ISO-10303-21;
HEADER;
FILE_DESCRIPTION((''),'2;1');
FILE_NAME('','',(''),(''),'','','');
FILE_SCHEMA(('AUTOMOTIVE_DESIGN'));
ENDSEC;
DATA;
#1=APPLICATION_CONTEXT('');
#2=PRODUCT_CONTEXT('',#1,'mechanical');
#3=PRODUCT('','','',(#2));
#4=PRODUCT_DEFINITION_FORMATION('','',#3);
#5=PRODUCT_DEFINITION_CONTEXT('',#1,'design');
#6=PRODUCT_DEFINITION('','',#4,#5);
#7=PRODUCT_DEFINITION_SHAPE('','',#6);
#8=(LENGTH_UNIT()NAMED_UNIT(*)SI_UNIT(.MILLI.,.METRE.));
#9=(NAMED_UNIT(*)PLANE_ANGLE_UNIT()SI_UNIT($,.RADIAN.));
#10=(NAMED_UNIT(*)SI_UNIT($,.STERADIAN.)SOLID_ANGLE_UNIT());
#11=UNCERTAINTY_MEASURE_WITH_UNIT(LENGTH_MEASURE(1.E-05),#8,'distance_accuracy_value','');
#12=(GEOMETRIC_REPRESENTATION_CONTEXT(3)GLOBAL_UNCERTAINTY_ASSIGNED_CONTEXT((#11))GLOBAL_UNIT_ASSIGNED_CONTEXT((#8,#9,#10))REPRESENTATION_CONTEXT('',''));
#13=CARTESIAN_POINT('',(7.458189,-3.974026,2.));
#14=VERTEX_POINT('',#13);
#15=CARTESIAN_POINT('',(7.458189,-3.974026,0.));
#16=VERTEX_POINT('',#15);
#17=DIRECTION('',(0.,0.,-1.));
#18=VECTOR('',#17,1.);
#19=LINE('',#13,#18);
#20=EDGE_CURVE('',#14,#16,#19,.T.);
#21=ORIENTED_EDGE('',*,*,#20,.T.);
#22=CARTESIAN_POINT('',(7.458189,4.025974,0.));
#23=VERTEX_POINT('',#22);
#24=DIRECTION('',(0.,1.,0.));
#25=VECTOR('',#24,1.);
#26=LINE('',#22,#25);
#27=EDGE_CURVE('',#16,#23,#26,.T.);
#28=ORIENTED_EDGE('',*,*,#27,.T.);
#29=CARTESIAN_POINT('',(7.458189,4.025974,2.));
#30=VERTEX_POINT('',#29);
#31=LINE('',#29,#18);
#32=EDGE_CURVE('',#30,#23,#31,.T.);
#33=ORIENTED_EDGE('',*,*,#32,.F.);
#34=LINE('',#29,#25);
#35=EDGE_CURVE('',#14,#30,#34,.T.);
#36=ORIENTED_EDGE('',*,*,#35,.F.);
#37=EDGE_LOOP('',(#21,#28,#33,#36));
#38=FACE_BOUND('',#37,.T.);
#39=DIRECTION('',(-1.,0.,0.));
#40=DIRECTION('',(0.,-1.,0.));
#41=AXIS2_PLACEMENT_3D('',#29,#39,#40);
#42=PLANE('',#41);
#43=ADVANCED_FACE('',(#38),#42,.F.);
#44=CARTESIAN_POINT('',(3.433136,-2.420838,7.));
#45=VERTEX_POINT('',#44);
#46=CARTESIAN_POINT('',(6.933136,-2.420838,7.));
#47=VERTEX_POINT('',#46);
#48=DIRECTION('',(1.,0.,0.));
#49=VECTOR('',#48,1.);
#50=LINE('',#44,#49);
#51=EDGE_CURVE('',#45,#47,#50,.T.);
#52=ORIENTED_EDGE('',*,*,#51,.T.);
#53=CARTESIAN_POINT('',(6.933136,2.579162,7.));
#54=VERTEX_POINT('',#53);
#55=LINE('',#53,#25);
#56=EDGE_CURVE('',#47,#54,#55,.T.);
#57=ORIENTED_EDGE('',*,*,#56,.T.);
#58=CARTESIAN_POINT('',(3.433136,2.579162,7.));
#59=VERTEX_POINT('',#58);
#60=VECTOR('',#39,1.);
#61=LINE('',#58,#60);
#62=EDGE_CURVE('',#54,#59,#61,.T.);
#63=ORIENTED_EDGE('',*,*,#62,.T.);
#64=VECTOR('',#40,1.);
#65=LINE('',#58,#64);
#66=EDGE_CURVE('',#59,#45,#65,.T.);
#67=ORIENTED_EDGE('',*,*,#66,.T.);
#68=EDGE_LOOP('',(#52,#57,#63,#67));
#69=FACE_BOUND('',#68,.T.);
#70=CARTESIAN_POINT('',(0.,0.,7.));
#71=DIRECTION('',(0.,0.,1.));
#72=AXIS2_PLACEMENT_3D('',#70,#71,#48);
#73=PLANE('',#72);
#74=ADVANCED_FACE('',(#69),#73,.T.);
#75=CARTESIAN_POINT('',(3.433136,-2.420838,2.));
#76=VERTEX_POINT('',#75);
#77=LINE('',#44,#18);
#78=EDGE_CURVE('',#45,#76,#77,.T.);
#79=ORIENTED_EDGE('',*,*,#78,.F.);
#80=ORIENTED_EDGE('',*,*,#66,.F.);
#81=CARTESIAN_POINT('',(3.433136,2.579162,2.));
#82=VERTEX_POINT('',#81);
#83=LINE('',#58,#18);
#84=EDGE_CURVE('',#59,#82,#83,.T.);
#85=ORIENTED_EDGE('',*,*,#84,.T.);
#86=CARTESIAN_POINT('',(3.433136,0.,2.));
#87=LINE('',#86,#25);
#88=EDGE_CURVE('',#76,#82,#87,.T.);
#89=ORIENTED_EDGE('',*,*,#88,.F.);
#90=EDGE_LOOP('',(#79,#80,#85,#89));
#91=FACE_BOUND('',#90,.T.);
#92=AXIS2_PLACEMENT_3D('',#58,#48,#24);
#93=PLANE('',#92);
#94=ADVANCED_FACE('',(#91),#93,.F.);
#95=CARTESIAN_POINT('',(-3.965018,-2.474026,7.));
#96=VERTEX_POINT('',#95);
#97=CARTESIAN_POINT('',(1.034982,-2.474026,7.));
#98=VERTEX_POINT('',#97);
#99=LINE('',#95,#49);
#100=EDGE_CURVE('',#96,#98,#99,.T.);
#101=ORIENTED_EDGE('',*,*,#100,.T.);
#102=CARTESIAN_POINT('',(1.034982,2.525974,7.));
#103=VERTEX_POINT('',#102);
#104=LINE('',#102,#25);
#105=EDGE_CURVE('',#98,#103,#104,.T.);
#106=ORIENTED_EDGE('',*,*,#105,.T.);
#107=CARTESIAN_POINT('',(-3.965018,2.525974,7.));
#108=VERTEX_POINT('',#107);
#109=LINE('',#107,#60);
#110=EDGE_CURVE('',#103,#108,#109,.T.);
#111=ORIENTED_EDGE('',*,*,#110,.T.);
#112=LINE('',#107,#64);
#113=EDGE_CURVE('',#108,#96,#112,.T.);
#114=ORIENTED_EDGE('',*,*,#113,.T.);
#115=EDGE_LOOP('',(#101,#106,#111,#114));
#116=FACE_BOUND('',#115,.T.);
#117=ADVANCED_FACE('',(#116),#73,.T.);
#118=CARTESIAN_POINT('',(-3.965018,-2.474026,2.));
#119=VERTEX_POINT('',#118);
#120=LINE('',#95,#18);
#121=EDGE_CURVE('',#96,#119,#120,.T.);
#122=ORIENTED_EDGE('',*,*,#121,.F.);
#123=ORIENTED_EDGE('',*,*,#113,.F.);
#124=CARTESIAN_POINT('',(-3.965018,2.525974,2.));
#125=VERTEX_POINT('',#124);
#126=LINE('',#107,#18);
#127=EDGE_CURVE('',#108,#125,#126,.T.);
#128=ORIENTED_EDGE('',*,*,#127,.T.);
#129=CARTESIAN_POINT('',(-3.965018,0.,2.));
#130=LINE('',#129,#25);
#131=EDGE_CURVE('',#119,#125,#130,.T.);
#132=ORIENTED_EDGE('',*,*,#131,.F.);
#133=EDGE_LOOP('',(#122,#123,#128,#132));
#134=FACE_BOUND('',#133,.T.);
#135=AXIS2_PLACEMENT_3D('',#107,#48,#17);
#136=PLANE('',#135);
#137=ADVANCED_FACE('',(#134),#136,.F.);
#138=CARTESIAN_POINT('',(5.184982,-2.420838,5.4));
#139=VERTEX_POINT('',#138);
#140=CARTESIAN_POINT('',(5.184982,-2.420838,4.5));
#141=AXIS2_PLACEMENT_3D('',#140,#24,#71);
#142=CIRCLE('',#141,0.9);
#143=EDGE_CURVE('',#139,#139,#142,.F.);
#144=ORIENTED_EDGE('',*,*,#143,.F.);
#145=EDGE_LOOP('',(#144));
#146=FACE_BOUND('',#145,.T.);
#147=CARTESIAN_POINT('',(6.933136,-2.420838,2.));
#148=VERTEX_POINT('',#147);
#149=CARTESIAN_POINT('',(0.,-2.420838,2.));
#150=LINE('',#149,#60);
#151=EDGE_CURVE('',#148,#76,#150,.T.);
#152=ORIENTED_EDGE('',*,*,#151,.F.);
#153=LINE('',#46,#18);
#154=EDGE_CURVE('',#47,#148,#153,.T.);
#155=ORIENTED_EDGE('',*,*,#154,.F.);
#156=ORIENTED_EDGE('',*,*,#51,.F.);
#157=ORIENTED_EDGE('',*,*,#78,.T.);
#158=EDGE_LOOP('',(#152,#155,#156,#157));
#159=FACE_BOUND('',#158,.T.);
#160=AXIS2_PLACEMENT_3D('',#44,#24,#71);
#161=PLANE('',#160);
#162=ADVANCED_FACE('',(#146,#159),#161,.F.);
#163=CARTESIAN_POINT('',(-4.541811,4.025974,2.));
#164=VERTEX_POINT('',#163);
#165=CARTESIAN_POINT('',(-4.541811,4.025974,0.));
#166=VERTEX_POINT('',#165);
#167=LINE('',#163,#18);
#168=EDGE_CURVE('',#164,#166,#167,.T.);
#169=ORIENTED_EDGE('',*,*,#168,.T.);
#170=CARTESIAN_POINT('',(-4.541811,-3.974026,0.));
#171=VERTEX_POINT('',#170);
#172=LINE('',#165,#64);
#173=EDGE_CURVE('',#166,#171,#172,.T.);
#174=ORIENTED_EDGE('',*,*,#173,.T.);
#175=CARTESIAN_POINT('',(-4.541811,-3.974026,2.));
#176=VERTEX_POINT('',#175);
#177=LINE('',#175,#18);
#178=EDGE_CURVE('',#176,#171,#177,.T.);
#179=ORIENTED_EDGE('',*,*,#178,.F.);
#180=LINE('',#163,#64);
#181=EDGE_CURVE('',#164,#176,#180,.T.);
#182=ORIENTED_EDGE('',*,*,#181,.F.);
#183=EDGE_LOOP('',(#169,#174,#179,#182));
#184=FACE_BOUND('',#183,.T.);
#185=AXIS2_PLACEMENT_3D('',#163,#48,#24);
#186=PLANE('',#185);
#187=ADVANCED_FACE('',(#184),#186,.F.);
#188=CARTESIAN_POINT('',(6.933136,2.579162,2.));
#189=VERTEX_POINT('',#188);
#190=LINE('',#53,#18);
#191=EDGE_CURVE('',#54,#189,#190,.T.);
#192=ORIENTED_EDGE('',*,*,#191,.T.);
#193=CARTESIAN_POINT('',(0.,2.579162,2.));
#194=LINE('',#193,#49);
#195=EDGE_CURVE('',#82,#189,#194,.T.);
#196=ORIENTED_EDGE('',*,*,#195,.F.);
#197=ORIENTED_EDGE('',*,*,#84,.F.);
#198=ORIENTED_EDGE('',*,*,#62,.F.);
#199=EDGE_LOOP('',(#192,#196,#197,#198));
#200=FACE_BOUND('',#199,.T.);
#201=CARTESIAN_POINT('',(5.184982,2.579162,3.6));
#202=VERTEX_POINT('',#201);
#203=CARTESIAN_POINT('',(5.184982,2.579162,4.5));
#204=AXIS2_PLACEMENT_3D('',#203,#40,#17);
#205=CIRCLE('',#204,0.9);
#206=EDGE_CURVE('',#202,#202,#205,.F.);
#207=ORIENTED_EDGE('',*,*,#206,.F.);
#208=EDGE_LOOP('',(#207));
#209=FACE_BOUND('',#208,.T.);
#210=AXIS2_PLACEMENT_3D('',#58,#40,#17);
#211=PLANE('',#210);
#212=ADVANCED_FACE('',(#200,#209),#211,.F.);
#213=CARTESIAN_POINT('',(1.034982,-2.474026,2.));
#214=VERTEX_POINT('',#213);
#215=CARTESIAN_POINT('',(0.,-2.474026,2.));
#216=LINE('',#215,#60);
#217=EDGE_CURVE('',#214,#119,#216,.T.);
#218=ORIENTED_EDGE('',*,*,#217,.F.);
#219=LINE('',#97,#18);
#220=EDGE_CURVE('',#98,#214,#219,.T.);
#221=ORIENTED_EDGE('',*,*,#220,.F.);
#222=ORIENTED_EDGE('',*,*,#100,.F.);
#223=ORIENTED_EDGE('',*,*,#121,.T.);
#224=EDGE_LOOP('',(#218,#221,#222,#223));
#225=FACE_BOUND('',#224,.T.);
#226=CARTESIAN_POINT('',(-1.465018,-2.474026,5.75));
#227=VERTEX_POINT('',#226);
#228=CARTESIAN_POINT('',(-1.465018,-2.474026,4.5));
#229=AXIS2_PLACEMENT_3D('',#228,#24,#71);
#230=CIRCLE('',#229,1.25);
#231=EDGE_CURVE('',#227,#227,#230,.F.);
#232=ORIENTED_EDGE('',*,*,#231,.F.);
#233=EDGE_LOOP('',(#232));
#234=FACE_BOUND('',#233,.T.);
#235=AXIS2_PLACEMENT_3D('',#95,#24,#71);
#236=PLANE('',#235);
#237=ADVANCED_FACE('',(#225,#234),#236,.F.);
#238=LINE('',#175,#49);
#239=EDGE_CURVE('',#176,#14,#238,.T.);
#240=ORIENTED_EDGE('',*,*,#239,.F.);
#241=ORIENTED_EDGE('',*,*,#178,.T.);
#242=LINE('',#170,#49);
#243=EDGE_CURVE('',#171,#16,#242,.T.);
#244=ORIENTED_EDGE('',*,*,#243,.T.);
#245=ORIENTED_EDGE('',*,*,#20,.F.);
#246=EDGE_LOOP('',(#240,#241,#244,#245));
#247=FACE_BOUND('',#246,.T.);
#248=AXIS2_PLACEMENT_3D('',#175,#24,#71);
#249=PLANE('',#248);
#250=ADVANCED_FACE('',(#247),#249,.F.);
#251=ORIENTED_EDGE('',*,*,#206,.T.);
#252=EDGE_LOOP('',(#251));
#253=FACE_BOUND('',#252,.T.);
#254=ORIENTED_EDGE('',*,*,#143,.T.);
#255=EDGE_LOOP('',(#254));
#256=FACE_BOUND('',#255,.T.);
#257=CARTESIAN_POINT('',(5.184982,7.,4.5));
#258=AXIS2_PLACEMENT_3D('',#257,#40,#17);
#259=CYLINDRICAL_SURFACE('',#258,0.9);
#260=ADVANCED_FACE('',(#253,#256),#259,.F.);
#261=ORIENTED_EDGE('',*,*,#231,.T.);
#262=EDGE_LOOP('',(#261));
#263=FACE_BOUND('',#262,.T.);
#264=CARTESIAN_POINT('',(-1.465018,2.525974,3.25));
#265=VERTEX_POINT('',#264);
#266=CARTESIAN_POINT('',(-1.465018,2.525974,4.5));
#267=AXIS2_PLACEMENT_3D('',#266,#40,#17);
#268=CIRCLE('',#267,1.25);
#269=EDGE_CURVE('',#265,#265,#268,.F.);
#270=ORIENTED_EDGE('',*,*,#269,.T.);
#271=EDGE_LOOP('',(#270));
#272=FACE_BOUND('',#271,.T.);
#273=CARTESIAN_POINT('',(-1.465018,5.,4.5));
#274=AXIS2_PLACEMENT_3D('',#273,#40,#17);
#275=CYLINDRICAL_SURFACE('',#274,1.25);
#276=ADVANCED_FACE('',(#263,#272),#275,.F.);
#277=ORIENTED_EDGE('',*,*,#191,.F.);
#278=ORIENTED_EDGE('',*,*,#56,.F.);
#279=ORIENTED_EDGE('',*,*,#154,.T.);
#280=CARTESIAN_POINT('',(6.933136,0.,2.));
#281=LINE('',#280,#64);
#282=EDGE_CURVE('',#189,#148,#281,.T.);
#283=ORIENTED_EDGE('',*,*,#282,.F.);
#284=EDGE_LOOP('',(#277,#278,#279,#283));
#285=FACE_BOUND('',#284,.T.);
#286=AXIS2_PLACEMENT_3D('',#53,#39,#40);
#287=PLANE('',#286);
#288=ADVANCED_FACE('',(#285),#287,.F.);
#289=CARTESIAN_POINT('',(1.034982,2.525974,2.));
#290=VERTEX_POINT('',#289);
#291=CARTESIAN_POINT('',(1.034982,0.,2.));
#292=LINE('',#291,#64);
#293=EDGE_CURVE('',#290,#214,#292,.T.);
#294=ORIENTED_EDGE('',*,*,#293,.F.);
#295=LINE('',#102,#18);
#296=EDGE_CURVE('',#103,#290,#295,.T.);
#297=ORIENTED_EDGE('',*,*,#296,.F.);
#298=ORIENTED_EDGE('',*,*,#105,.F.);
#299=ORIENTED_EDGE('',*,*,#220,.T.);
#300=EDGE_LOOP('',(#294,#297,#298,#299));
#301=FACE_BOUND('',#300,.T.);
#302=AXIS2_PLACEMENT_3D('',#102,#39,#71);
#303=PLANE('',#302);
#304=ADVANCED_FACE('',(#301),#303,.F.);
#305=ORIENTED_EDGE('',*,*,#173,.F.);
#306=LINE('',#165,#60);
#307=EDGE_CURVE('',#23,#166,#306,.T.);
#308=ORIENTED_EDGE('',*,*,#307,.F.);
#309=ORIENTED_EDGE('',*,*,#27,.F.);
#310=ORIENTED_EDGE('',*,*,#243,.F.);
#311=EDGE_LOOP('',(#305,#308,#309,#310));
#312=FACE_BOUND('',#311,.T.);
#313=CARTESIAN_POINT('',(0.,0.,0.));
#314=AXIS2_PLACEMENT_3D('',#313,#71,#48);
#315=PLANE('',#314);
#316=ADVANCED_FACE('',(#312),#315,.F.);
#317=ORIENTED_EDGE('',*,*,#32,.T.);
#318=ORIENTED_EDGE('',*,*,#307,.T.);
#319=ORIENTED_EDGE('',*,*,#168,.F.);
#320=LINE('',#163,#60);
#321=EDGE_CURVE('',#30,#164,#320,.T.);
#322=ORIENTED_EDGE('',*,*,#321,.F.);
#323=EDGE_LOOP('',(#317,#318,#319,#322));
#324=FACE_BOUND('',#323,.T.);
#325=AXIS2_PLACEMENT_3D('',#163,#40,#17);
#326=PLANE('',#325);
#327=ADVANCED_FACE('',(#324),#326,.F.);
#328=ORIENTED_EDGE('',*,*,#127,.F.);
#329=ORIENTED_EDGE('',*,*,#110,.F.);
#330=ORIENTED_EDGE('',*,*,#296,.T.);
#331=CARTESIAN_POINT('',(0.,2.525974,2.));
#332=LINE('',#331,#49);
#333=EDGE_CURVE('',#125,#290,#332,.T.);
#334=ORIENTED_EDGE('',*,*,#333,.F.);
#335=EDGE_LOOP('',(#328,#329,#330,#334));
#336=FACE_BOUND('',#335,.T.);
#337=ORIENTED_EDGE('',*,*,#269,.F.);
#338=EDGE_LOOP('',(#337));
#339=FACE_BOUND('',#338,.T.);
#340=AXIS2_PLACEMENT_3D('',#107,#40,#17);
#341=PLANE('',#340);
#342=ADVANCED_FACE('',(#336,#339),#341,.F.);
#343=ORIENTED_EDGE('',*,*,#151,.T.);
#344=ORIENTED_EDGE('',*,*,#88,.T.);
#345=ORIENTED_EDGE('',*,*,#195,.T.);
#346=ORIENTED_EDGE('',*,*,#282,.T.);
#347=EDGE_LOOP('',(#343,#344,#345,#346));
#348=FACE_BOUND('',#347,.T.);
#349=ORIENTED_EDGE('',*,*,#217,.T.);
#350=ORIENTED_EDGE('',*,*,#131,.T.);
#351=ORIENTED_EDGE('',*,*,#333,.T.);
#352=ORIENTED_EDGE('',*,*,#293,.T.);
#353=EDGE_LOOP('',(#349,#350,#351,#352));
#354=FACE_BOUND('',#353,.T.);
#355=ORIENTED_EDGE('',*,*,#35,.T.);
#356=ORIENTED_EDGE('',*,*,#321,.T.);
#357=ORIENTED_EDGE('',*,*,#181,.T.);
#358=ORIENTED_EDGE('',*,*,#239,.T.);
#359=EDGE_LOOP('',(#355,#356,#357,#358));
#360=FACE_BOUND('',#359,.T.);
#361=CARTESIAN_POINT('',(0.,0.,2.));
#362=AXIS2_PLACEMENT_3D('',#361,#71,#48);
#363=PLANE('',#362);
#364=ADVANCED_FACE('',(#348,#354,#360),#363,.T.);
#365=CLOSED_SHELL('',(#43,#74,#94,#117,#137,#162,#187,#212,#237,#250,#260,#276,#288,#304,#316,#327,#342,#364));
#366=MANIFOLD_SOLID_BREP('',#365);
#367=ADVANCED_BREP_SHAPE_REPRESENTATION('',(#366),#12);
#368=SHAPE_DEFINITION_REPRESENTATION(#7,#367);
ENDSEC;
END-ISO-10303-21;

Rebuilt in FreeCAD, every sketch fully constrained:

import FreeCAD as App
import Part
import Sketcher

V = App.Vector


def add_polygon(sketch, points):
    """Adds a closed chain of lines whose ends are joined by coincident constraints."""
    first, n = sketch.GeometryCount, len(points)
    for a, b in zip(points, points[1:] + points[:1]):
        sketch.addGeometry(Part.LineSegment(App.Vector(*a, 0), App.Vector(*b, 0)), False)
    for i in range(n):
        sketch.addConstraint(Sketcher.Constraint("Coincident", first + i, 2, first + (i + 1) % n, 1))

doc = App.newDocument("Part")
body = doc.addObject("PartDesign::Body", "Body")

# Sketch on XY plane
sketch1 = body.newObject("Sketcher::SketchObject", "Sketch")
sketch1.AttachmentSupport = (doc.getObject("XY_Plane"), [""])
sketch1.MapMode = "FlatFace"
add_polygon(sketch1, [(-5, 4), (-5, -4), (7, -4), (7, 4)])  # lines 0-3
sketch1.addConstraint(Sketcher.Constraint("Vertical", 0))
sketch1.addConstraint(Sketcher.Constraint("Horizontal", 1))
sketch1.addConstraint(Sketcher.Constraint("Vertical", 2))
sketch1.addConstraint(Sketcher.Constraint("Horizontal", 3))
sketch1.addConstraint(Sketcher.Constraint("DistanceX", 1, 1, 1, 2, 12.0))
sketch1.addConstraint(Sketcher.Constraint("DistanceY", 0, 2, 0, 1, 8.0))
sketch1.addConstraint(Sketcher.Constraint("DistanceX", 0, 2, -1, 1, 4.541811))
sketch1.addConstraint(Sketcher.Constraint("DistanceY", 0, 2, -1, 1, 3.974026))
pad1 = body.newObject("PartDesign::Pad", "Pad")
pad1.Profile = sketch1
pad1.Length = 2

# Sketch on XY plane
sketch2 = body.newObject("Sketcher::SketchObject", "Sketch001")
sketch2.AttachmentSupport = (doc.getObject("XY_Plane"), [""])
sketch2.MapMode = "FlatFace"
add_polygon(sketch2, [(-4, 3), (-4, -2), (1, -2), (1, 3)])  # lines 0-3
sketch2.addConstraint(Sketcher.Constraint("Vertical", 0))
sketch2.addConstraint(Sketcher.Constraint("Horizontal", 1))
sketch2.addConstraint(Sketcher.Constraint("Vertical", 2))
sketch2.addConstraint(Sketcher.Constraint("Horizontal", 3))
sketch2.addConstraint(Sketcher.Constraint("Equal", 3, 0))
sketch2.addConstraint(Sketcher.Constraint("DistanceX", 1, 1, 1, 2, 5.0))
sketch2.addConstraint(Sketcher.Constraint("DistanceX", 0, 2, -1, 1, 3.965018))
sketch2.addConstraint(Sketcher.Constraint("DistanceY", 0, 2, -1, 1, 2.474026))
pad2 = body.newObject("PartDesign::Pad", "Pad001")
pad2.Profile = sketch2
pad2.Length = 7

# Sketch on XZ plane
sketch3 = body.newObject("Sketcher::SketchObject", "Sketch002")
sketch3.AttachmentSupport = (doc.getObject("XZ_Plane"), [""])
sketch3.MapMode = "FlatFace"
sketch3.addGeometry(Part.Circle(V(-1.5, 4.5, 0), V(0, 0, 1), 1.2), False)
sketch3.addConstraint(Sketcher.Constraint("Diameter", 0, 2.5))
sketch3.addConstraint(Sketcher.Constraint("DistanceY", -1, 1, 0, 3, 4.5))
sketch3.addConstraint(Sketcher.Constraint("DistanceX", 0, 3, -1, 1, 1.465018))
pocket1 = body.newObject("PartDesign::Pocket", "Pocket")
pocket1.Profile = sketch3
pocket1.Type = "ThroughAll"
pocket1.Midplane = True

# Sketch on XY plane
sketch4 = body.newObject("Sketcher::SketchObject", "Sketch003")
sketch4.AttachmentSupport = (doc.getObject("XY_Plane"), [""])
sketch4.MapMode = "FlatFace"
add_polygon(sketch4, [(3.4, 2.6), (3.4, -2.4), (6.9, -2.4), (6.9, 2.6)])  # lines 0-3
sketch4.addConstraint(Sketcher.Constraint("Vertical", 0))
sketch4.addConstraint(Sketcher.Constraint("Horizontal", 1))
sketch4.addConstraint(Sketcher.Constraint("Vertical", 2))
sketch4.addConstraint(Sketcher.Constraint("Horizontal", 3))
sketch4.addConstraint(Sketcher.Constraint("DistanceY", 0, 2, 0, 1, 5.0))
sketch4.addConstraint(Sketcher.Constraint("DistanceX", 1, 1, 1, 2, 3.5))
sketch4.addConstraint(Sketcher.Constraint("DistanceX", -1, 1, 0, 2, 3.433136))
sketch4.addConstraint(Sketcher.Constraint("DistanceY", 0, 2, -1, 1, 2.420838))
pad3 = body.newObject("PartDesign::Pad", "Pad002")
pad3.Profile = sketch4
pad3.Length = 7

# Sketch on XZ plane
sketch5 = body.newObject("Sketcher::SketchObject", "Sketch004")
sketch5.AttachmentSupport = (doc.getObject("XZ_Plane"), [""])
sketch5.MapMode = "FlatFace"
sketch5.addGeometry(Part.Circle(V(5.2, 4.5, 0), V(0, 0, 1), 0.9), False)
sketch5.addConstraint(Sketcher.Constraint("Diameter", 0, 1.8))
sketch5.addConstraint(Sketcher.Constraint("DistanceY", -1, 1, 0, 3, 4.5))
sketch5.addConstraint(Sketcher.Constraint("DistanceX", -1, 1, 0, 3, 5.184982))
pocket2 = body.newObject("PartDesign::Pocket", "Pocket001")
pocket2.Profile = sketch5
pocket2.Type = "ThroughAll"
pocket2.Midplane = True

doc.recompute()
